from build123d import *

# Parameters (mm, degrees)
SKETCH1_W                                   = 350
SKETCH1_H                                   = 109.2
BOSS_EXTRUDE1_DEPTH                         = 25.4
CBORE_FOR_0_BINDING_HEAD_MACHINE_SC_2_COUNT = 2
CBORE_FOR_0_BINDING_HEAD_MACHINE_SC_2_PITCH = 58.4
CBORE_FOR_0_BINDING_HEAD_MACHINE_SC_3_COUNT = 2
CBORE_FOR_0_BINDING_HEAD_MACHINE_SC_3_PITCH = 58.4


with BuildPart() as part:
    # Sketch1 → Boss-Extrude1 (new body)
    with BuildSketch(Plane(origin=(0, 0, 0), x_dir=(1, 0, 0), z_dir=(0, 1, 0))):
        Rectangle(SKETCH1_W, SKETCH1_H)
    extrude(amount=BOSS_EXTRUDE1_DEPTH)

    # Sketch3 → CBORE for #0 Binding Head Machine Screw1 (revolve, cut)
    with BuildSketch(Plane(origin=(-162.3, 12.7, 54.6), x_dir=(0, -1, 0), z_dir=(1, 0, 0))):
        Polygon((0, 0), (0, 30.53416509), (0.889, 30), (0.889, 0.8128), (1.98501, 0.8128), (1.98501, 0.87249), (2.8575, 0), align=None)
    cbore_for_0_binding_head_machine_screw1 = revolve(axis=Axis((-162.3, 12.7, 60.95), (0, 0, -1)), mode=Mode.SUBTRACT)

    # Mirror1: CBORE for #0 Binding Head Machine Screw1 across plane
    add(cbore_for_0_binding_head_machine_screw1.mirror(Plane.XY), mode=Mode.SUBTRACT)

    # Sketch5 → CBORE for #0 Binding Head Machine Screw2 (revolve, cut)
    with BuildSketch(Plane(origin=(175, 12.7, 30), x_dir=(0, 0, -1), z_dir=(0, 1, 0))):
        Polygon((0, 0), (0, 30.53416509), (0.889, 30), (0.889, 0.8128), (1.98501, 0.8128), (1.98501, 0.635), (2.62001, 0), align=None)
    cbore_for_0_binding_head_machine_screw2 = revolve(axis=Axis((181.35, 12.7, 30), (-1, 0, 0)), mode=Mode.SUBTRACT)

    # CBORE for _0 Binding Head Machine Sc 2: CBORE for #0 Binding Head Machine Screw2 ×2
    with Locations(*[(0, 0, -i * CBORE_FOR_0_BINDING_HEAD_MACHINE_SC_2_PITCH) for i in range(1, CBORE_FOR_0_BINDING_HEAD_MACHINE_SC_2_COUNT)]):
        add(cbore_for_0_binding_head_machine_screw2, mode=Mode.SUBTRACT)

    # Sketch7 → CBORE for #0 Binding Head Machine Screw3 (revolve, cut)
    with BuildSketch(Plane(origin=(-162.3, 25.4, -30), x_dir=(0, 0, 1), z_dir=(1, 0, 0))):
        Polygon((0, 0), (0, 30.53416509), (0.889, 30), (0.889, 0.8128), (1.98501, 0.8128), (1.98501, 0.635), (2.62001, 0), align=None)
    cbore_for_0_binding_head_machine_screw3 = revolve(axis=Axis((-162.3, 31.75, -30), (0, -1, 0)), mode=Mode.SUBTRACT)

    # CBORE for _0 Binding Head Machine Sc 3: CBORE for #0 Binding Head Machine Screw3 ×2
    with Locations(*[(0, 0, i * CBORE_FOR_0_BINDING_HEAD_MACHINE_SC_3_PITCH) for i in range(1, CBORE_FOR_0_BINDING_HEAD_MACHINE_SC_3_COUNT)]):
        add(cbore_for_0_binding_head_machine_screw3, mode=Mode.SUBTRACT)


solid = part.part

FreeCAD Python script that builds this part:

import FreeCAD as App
import Part
import Sketcher

V = App.Vector
Q = App.Units.Quantity

doc = App.newDocument("Part")
body = doc.addObject("PartDesign::Body", "Body")

# Sketch on XZ plane
sketch1 = body.newObject("Sketcher::SketchObject", "Sketch")
sketch1.AttachmentSupport = (doc.getObject("XZ_Plane"), [""])
sketch1.MapMode = "FlatFace"
sketch1.addGeometry([
    Part.LineSegment(V(-175, -55, 0), V(-175, 55, 0)),
    Part.LineSegment(V(-175, 55, 0), V(175, 55, 0)),
    Part.LineSegment(V(175, 55, 0), V(175, -55, 0)),
    Part.LineSegment(V(175, -55, 0), V(-175, -55, 0)),
], False)
sketch1.addConstraint([
    Sketcher.Constraint("Coincident", 0, 2, 1, 1),
    Sketcher.Constraint("Coincident", 1, 2, 2, 1),
    Sketcher.Constraint("Coincident", 2, 2, 3, 1),
    Sketcher.Constraint("Coincident", 3, 2, 0, 1),
    Sketcher.Constraint("Vertical", 0),
    Sketcher.Constraint("Horizontal", 1),
    Sketcher.Constraint("Vertical", 2),
    Sketcher.Constraint("Horizontal", 3),
    Sketcher.Constraint("Symmetric", 0, 2, 2, 2, -1, 1),
    Sketcher.Constraint("DistanceX", 1, 1, 1, 2, Q("350 mm")),
    Sketcher.Constraint("DistanceY", 0, 1, 0, 2, Q("109.2 mm")),
])
pad1 = body.newObject("PartDesign::Pad", "Pad")
pad1.Profile = sketch1
pad1.Length = 25.4
pad1.Reversed = True

# Sketch on YZ plane
sketch2 = body.newObject("Sketcher::SketchObject", "Sketch001")
sketch2.AttachmentSupport = (doc.getObject("YZ_Plane"), [""])
sketch2.MapMode = "FlatFace"
sketch2.AttachmentOffset = App.Placement(V(0, 0, -162.3), App.Rotation())
sketch2.addGeometry([
    Part.LineSegment(V(12.7, 24.07, 0), V(12.7, 54.6, 0)),  # 0
    Part.LineSegment(V(12.7, 54.6, 0), V(9.84, 54.6, 0)),  # 1
    Part.LineSegment(V(9.84, 54.6, 0), V(10.71, 53.73, 0)),  # 2
    Part.LineSegment(V(10.71, 53.73, 0), V(10.71, 53.79, 0)),  # 3
    Part.LineSegment(V(10.71, 53.79, 0), V(11.81, 53.79, 0)),  # 4
    Part.LineSegment(V(11.81, 53.79, 0), V(11.81, 24.6, 0)),  # 5
    Part.LineSegment(V(11.81, 24.6, 0), V(12.7, 24.07, 0)),  # 6
], False)
sketch2.addGeometry(Part.LineSegment(V(12.7, 54.6, 0), V(12.7, 24.07, 0)), True)  # axis
sketch2.addConstraint([
    Sketcher.Constraint("Coincident", 0, 2, 1, 1),
    Sketcher.Constraint("Coincident", 1, 2, 2, 1),
    Sketcher.Constraint("Coincident", 2, 2, 3, 1),
    Sketcher.Constraint("Coincident", 3, 2, 4, 1),
    Sketcher.Constraint("Coincident", 4, 2, 5, 1),
    Sketcher.Constraint("Coincident", 5, 2, 6, 1),
    Sketcher.Constraint("Coincident", 6, 2, 0, 1),
    Sketcher.Constraint("Vertical", 0),
    Sketcher.Constraint("Horizontal", 1),
    Sketcher.Constraint("Vertical", 3),
    Sketcher.Constraint("Horizontal", 4),
    Sketcher.Constraint("Vertical", 5),
    Sketcher.Constraint("Vertical", 7),
    Sketcher.Constraint("Coincident", 7, 1, 0, 2),
    Sketcher.Constraint("Equal", 0, 7),
    Sketcher.Constraint("Angle", 2, Q("-45 deg")),
    Sketcher.Constraint("Angle", 6, Q("-31 deg")),
    Sketcher.Constraint("DistanceY", 5, 2, 0, 2, Q("30 mm")),
    Sketcher.Constraint("DistanceX", -1, 1, 0, 2, Q("12.7 mm")),
    Sketcher.Constraint("DistanceY", -1, 1, 0, 2, Q("54.6 mm")),
    Sketcher.Constraint("DistanceX", 1, 2, 1, 1, Q("2.8575 mm")),
    Sketcher.Constraint("DistanceY", 5, 2, 5, 1, Q("29.1872 mm")),
    Sketcher.Constraint("DistanceX", -1, 1, 4, 2, Q("11.811 mm")),
    Sketcher.Constraint("DistanceX", 4, 1, 4, 2, Q("1.09601 mm")),
])
groove = body.newObject("PartDesign::Groove", "Groove")
groove.Profile = sketch2
groove.ReferenceAxis = (sketch2, ["Axis0"])
groove.Angle = 360
doc.recompute()

mirrored = body.newObject("PartDesign::Mirrored", "Mirrored")
mirrored.Originals = [groove]
mirrored.MirrorPlane = (doc.getObject("XY_Plane"), [""])
body.Tip = mirrored

# Sketch on XZ plane
sketch3 = body.newObject("Sketcher::SketchObject", "Sketch002")
sketch3.AttachmentSupport = (doc.getObject("XZ_Plane"), [""])
sketch3.MapMode = "FlatFace"
sketch3.AttachmentOffset = App.Placement(V(0, 0, -12.7), App.Rotation())
sketch3.addGeometry([
    Part.LineSegment(V(144.47, 30, 0), V(175, 30, 0)),  # 0
    Part.LineSegment(V(175, 30, 0), V(175, 27.38, 0)),  # 1
    Part.LineSegment(V(175, 27.38, 0), V(174.37, 28.01, 0)),  # 2
    Part.LineSegment(V(174.37, 28.01, 0), V(174.19, 28.01, 0)),  # 3
    Part.LineSegment(V(174.19, 28.01, 0), V(174.19, 29.11, 0)),  # 4
    Part.LineSegment(V(174.19, 29.11, 0), V(145, 29.11, 0)),  # 5
    Part.LineSegment(V(145, 29.11, 0), V(144.47, 30, 0)),  # 6
], False)
sketch3.addGeometry(Part.LineSegment(V(175, 30, 0), V(144.47, 30, 0)), True)  # axis
sketch3.addConstraint([
    Sketcher.Constraint("Coincident", 0, 2, 1, 1),
    Sketcher.Constraint("Coincident", 1, 2, 2, 1),
    Sketcher.Constraint("Coincident", 2, 2, 3, 1),
    Sketcher.Constraint("Coincident", 3, 2, 4, 1),
    Sketcher.Constraint("Coincident", 4, 2, 5, 1),
    Sketcher.Constraint("Coincident", 5, 2, 6, 1),
    Sketcher.Constraint("Coincident", 6, 2, 0, 1),
    Sketcher.Constraint("Horizontal", 0),
    Sketcher.Constraint("Vertical", 1),
    Sketcher.Constraint("Horizontal", 3),
    Sketcher.Constraint("Vertical", 4),
    Sketcher.Constraint("Horizontal", 5),
    Sketcher.Constraint("Horizontal", 7),
    Sketcher.Constraint("Coincident", 7, 1, 0, 2),
    Sketcher.Constraint("Equal", 0, 7),
    Sketcher.Constraint("Angle", 2, Q("135 deg")),
    Sketcher.Constraint("Angle", 6, Q("121 deg")),
    Sketcher.Constraint("DistanceX", -1, 1, 0, 2, Q("175 mm")),
    Sketcher.Constraint("DistanceY", -1, 1, 0, 2, Q("30 mm")),
    Sketcher.Constraint("DistanceX", -1, 1, 5, 2, Q("145 mm")),
    Sketcher.Constraint("DistanceX", 3, 2, 3, 1, Q("0.1778 mm")),
    Sketcher.Constraint("DistanceX", 5, 2, 5, 1, Q("29.1872 mm")),
    Sketcher.Constraint("DistanceY", -1, 1, 4, 2, Q("29.111 mm")),
    Sketcher.Constraint("DistanceY", 1, 2, 1, 1, Q("2.62001 mm")),
])
groove2 = body.newObject("PartDesign::Groove", "Groove001")
groove2.Profile = sketch3
groove2.ReferenceAxis = (sketch3, ["Axis0"])
groove2.Angle = 360
doc.recompute()

linearpattern = body.newObject("PartDesign::LinearPattern", "LinearPattern")
linearpattern.Originals = [groove2]
linearpattern.Direction = (doc.getObject("Z_Axis"), [""])
linearpattern.Mode = "offset"
linearpattern.Offset = 58.4
linearpattern.Occurrences = 2
linearpattern.Reversed = True
body.Tip = linearpattern

# Sketch on YZ plane
sketch4 = body.newObject("Sketcher::SketchObject", "Sketch003")
sketch4.AttachmentSupport = (doc.getObject("YZ_Plane"), [""])
sketch4.MapMode = "FlatFace"
sketch4.AttachmentOffset = App.Placement(V(0, 0, -162.3), App.Rotation())
sketch4.addGeometry([
    Part.LineSegment(V(-5.13, -30, 0), V(25.4, -30, 0)),  # 0
    Part.LineSegment(V(25.4, -30, 0), V(25.4, -27.38, 0)),  # 1
    Part.LineSegment(V(25.4, -27.38, 0), V(24.77, -28.01, 0)),  # 2
    Part.LineSegment(V(24.77, -28.01, 0), V(24.59, -28.01, 0)),  # 3
    Part.LineSegment(V(24.59, -28.01, 0), V(24.59, -29.11, 0)),  # 4
    Part.LineSegment(V(24.59, -29.11, 0), V(-4.6, -29.11, 0)),  # 5
    Part.LineSegment(V(-4.6, -29.11, 0), V(-5.13, -30, 0)),  # 6
], False)
sketch4.addGeometry(Part.LineSegment(V(25.4, -30, 0), V(-5.13, -30, 0)), True)  # axis
sketch4.addConstraint([
    Sketcher.Constraint("Coincident", 0, 2, 1, 1),
    Sketcher.Constraint("Coincident", 1, 2, 2, 1),
    Sketcher.Constraint("Coincident", 2, 2, 3, 1),
    Sketcher.Constraint("Coincident", 3, 2, 4, 1),
    Sketcher.Constraint("Coincident", 4, 2, 5, 1),
    Sketcher.Constraint("Coincident", 5, 2, 6, 1),
    Sketcher.Constraint("Coincident", 6, 2, 0, 1),
    Sketcher.Constraint("Horizontal", 0),
    Sketcher.Constraint("Vertical", 1),
    Sketcher.Constraint("Horizontal", 3),
    Sketcher.Constraint("Vertical", 4),
    Sketcher.Constraint("Horizontal", 5),
    Sketcher.Constraint("Horizontal", 7),
    Sketcher.Constraint("Coincident", 7, 1, 0, 2),
    Sketcher.Constraint("Equal", 0, 7),
    Sketcher.Constraint("Angle", 2, Q("-135 deg")),
    Sketcher.Constraint("Angle", 6, Q("-121 deg")),
    Sketcher.Constraint("DistanceY", 0, 2, -1, 1, Q("30 mm")),
    Sketcher.Constraint("DistanceX", 5, 2, 0, 2, Q("30 mm")),
    Sketcher.Constraint("DistanceX", -1, 1, 0, 2, Q("25.4 mm")),
    Sketcher.Constraint("DistanceX", 3, 2, 3, 1, Q("0.1778 mm")),
    Sketcher.Constraint("DistanceX", 5, 2, 5, 1, Q("29.1872 mm")),
    Sketcher.Constraint("DistanceY", 4, 2, -1, 1, Q("29.111 mm")),
    Sketcher.Constraint("DistanceY", 1, 1, 1, 2, Q("2.62001 mm")),
])
groove3 = body.newObject("PartDesign::Groove", "Groove002")
groove3.Profile = sketch4
groove3.ReferenceAxis = (sketch4, ["Axis0"])
groove3.Angle = 360
doc.recompute()

linearpattern2 = body.newObject("PartDesign::LinearPattern", "LinearPattern001")
linearpattern2.Originals = [groove3]
linearpattern2.Direction = (doc.getObject("Z_Axis"), [""])
linearpattern2.Mode = "offset"
linearpattern2.Offset = 58.4
linearpattern2.Occurrences = 2
body.Tip = linearpattern2

doc.recompute()
